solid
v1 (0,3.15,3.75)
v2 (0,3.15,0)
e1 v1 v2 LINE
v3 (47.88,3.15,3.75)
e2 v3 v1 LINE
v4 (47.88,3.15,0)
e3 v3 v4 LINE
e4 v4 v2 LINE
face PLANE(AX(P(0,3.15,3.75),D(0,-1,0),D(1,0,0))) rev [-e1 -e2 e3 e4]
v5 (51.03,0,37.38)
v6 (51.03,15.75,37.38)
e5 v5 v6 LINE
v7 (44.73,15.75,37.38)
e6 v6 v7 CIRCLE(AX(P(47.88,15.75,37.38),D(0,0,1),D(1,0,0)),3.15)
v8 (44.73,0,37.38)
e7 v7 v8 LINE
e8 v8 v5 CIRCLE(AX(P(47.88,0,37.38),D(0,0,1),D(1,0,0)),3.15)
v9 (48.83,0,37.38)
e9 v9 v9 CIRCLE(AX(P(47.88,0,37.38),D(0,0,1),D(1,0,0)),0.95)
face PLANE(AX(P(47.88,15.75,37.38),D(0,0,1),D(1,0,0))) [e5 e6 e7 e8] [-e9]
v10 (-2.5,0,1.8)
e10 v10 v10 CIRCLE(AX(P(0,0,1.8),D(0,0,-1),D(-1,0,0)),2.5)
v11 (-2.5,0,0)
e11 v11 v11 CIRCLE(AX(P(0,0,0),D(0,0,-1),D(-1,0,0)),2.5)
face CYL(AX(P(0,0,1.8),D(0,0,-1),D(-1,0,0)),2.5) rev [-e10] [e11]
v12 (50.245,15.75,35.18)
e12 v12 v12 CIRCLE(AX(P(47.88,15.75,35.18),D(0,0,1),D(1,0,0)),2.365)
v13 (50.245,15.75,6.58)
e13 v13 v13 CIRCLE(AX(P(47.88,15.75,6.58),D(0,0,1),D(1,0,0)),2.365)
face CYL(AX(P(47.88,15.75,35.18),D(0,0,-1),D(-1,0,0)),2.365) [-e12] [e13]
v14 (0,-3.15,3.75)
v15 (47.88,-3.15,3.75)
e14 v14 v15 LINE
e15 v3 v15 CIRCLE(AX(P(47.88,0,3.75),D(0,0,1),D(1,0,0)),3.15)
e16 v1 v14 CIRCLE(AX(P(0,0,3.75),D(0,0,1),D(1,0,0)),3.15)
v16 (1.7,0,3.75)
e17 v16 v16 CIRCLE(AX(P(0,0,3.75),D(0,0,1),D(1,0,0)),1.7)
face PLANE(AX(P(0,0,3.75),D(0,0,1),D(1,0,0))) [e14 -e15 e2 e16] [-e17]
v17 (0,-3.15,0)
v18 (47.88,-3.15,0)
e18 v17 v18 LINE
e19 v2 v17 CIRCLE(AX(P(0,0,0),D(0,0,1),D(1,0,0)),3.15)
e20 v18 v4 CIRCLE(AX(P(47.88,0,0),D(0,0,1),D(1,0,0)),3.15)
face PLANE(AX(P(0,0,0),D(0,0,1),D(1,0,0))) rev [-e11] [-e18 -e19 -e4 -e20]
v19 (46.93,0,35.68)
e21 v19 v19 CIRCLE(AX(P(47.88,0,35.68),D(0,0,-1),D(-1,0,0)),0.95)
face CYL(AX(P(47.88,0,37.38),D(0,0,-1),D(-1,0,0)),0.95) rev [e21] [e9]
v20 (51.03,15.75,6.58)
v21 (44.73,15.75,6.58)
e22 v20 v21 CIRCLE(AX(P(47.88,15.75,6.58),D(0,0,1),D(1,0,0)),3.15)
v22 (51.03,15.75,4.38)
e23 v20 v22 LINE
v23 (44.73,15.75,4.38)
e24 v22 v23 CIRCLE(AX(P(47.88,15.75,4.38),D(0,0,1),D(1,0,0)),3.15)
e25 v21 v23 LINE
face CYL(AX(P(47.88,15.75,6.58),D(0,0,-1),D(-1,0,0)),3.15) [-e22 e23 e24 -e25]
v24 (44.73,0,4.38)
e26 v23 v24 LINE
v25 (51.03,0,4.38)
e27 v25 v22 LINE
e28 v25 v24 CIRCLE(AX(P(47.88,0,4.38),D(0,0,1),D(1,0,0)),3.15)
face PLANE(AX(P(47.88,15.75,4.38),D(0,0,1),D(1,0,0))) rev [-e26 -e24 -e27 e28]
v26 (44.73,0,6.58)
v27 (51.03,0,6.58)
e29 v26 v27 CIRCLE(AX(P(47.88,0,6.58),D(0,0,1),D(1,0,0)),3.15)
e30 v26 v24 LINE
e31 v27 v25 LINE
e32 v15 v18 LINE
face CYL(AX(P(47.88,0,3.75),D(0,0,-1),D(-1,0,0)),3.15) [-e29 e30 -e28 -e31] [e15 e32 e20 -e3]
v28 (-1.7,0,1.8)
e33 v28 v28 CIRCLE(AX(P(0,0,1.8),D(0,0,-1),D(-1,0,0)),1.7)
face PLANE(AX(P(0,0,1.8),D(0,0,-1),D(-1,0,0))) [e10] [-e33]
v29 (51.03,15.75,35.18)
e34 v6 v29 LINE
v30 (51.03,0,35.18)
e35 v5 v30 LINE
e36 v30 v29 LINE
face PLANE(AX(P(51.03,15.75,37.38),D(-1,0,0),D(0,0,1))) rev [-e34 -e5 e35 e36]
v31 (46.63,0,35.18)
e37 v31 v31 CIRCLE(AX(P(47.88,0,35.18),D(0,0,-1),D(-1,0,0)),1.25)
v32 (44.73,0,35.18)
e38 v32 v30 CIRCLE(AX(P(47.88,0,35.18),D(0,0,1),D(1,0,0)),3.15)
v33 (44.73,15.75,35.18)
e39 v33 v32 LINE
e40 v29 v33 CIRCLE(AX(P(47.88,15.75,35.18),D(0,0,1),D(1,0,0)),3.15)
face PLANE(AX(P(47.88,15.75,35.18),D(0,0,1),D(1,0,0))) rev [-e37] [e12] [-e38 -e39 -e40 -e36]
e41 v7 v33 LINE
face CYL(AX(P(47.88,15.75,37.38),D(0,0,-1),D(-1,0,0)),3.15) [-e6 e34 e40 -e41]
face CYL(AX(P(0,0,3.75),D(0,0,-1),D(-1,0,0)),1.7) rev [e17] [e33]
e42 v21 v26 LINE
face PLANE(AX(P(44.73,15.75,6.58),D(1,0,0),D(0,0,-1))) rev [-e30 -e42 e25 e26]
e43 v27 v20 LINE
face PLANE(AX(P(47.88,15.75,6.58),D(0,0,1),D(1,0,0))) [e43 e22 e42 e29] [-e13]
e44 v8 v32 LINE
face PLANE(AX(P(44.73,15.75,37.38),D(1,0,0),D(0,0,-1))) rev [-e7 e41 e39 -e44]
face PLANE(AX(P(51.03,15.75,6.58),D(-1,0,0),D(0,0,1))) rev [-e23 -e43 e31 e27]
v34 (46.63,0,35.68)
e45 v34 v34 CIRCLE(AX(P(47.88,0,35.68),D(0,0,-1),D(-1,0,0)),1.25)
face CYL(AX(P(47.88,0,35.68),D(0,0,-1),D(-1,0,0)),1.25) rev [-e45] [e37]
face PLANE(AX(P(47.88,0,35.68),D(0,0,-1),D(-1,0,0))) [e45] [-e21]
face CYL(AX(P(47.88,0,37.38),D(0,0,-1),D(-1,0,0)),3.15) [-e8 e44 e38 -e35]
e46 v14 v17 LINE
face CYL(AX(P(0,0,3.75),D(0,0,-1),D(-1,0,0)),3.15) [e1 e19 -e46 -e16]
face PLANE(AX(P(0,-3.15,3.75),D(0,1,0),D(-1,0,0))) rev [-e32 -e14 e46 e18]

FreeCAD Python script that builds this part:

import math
import FreeCAD as App
import Part
import Sketcher

V = App.Vector
Q = App.Units.Quantity

doc = App.newDocument("Part")
body = doc.addObject("PartDesign::Body", "Body")

sketch1 = doc.addObject("Sketcher::SketchObject", "Sketch")
body.addObject(sketch1)
sketch1.AttachmentSupport = (doc.XY_Plane, [""])
sketch1.MapMode = "FlatFace"
sketch1.addGeometry(Part.LineSegment(V(47.88, 3.15, 0), V(0, 3.15, 0)), False)
sketch1.addGeometry(Part.ArcOfCircle(Part.Circle(V(0, 0, 0), V(0, 0, 1), 3.15), math.radians(90), math.radians(270)), False)
sketch1.addGeometry(Part.LineSegment(V(0, -3.15, 0), V(47.88, -3.15, 0)), False)
sketch1.addGeometry(Part.ArcOfCircle(Part.Circle(V(47.88, 0, 0), V(0, 0, 1), 3.15), math.radians(-90), math.radians(90)), False)
sketch1.addGeometry(Part.Circle(V(0, 0, 0), V(0, 0, 1), 1.7), False)
sketch1.addConstraint(Sketcher.Constraint("Tangent", 0, 2, 1, 1))
sketch1.addConstraint(Sketcher.Constraint("Tangent", 1, 2, 2, 1))
sketch1.addConstraint(Sketcher.Constraint("Tangent", 2, 2, 3, 1))
sketch1.addConstraint(Sketcher.Constraint("Tangent", 3, 2, 0, 1))
sketch1.addConstraint(Sketcher.Constraint("Horizontal", 0))
sketch1.addConstraint(Sketcher.Constraint("Horizontal", 2))
sketch1.addConstraint(Sketcher.Constraint("Coincident", 1, 3, -1, 1))
sketch1.addConstraint(Sketcher.Constraint("Coincident", 4, 3, -1, 1))
sketch1.addConstraint(Sketcher.Constraint("Diameter", 4, Q("3.4 mm")))
sketch1.addConstraint(Sketcher.Constraint("Radius", 1, Q("3.15 mm")))
sketch1.addConstraint(Sketcher.Constraint("DistanceX", 0, 2, 0, 1, Q("47.88 mm")))
pad1 = doc.addObject("PartDesign::Pad", "Pad")
body.addObject(pad1)
pad1.Profile = sketch1
pad1.Length = 3.75

sketch2 = doc.addObject("Sketcher::SketchObject", "Sketch001")
body.addObject(sketch2)
sketch2.AttachmentSupport = (doc.XY_Plane, [""])
sketch2.MapMode = "FlatFace"
sketch2.AttachmentOffset = App.Placement(V(0, 0, 3.75), App.Rotation())
sketch2.addGeometry(Part.Circle(V(47.88, 0, 0), V(0, 0, 1), 3.15), False)
sketch2.addConstraint(Sketcher.Constraint("PointOnObject", 0, 3, -1))
sketch2.addConstraint(Sketcher.Constraint("Diameter", 0, Q("6.3 mm")))
sketch2.addConstraint(Sketcher.Constraint("DistanceX", -1, 1, 0, 3, Q("47.88 mm")))
pad2 = doc.addObject("PartDesign::Pad", "Pad001")
body.addObject(pad2)
pad2.Profile = sketch2
pad2.Length = 0.63

sketch3 = doc.addObject("Sketcher::SketchObject", "Sketch002")
body.addObject(sketch3)
sketch3.AttachmentSupport = (doc.XY_Plane, [""])
sketch3.MapMode = "FlatFace"
sketch3.AttachmentOffset = App.Placement(V(0, 0, 4.38), App.Rotation())
sketch3.addGeometry(Part.LineSegment(V(44.73, 15.75, 0), V(44.73, 0, 0)), False)
sketch3.addGeometry(Part.ArcOfCircle(Part.Circle(V(47.88, 0, 0), V(0, 0, 1), 3.15), math.radians(180), math.radians(360)), False)
sketch3.addGeometry(Part.LineSegment(V(51.03, 0, 0), V(51.03, 15.75, 0)), False)
sketch3.addGeometry(Part.ArcOfCircle(Part.Circle(V(47.88, 15.75, 0), V(0, 0, 1), 3.15), math.radians(0), math.radians(180)), False)
sketch3.addConstraint(Sketcher.Constraint("Tangent", 0, 2, 1, 1))
sketch3.addConstraint(Sketcher.Constraint("Tangent", 1, 2, 2, 1))
sketch3.addConstraint(Sketcher.Constraint("Tangent", 2, 2, 3, 1))
sketch3.addConstraint(Sketcher.Constraint("Tangent", 3, 2, 0, 1))
sketch3.addConstraint(Sketcher.Constraint("Vertical", 0))
sketch3.addConstraint(Sketcher.Constraint("Vertical", 2))
sketch3.addConstraint(Sketcher.Constraint("PointOnObject", 1, 3, -1))
sketch3.addConstraint(Sketcher.Constraint("Radius", 1, Q("3.15 mm")))
sketch3.addConstraint(Sketcher.Constraint("DistanceY", 0, 2, 0, 1, Q("15.75 mm")))
sketch3.addConstraint(Sketcher.Constraint("DistanceX", -1, 1, 1, 3, Q("47.88 mm")))
pad3 = doc.addObject("PartDesign::Pad", "Pad002")
body.addObject(pad3)
pad3.Profile = sketch3
pad3.Length = 2.2

sketch4 = doc.addObject("Sketcher::SketchObject", "Sketch003")
body.addObject(sketch4)
sketch4.AttachmentSupport = (doc.XY_Plane, [""])
sketch4.MapMode = "FlatFace"
sketch4.AttachmentOffset = App.Placement(V(0, 0, 6.58), App.Rotation())
sketch4.addGeometry(Part.Circle(V(47.88, 15.75, 0), V(0, 0, 1), 2.365), False)
sketch4.addConstraint(Sketcher.Constraint("Diameter", 0, Q("4.73 mm")))
sketch4.addConstraint(Sketcher.Constraint("DistanceX", -1, 1, 0, 3, Q("47.88 mm")))
sketch4.addConstraint(Sketcher.Constraint("DistanceY", -1, 1, 0, 3, Q("15.75 mm")))
pad4 = doc.addObject("PartDesign::Pad", "Pad003")
body.addObject(pad4)
pad4.Profile = sketch4
pad4.Length = 28.6

sketch5 = doc.addObject("Sketcher::SketchObject", "Sketch004")
body.addObject(sketch5)
sketch5.AttachmentSupport = (doc.XY_Plane, [""])
sketch5.MapMode = "FlatFace"
sketch5.AttachmentOffset = App.Placement(V(0, 0, 35.18), App.Rotation())
sketch5.addGeometry(Part.LineSegment(V(44.73, 15.75, 0), V(44.73, 0, 0)), False)
sketch5.addGeometry(Part.ArcOfCircle(Part.Circle(V(47.88, 0, 0), V(0, 0, 1), 3.15), math.radians(180), math.radians(360)), False)
sketch5.addGeometry(Part.LineSegment(V(51.03, 0, 0), V(51.03, 15.75, 0)), False)
sketch5.addGeometry(Part.ArcOfCircle(Part.Circle(V(47.88, 15.75, 0), V(0, 0, 1), 3.15), math.radians(0), math.radians(180)), False)
sketch5.addGeometry(Part.Circle(V(47.88, 0, 0), V(0, 0, 1), 0.95), False)
sketch5.addConstraint(Sketcher.Constraint("Tangent", 0, 2, 1, 1))
sketch5.addConstraint(Sketcher.Constraint("Tangent", 1, 2, 2, 1))
sketch5.addConstraint(Sketcher.Constraint("Tangent", 2, 2, 3, 1))
sketch5.addConstraint(Sketcher.Constraint("Tangent", 3, 2, 0, 1))
sketch5.addConstraint(Sketcher.Constraint("Vertical", 0))
sketch5.addConstraint(Sketcher.Constraint("Vertical", 2))
sketch5.addConstraint(Sketcher.Constraint("Coincident", 4, 3, 1, 3))
sketch5.addConstraint(Sketcher.Constraint("PointOnObject", 1, 3, -1))
sketch5.addConstraint(Sketcher.Constraint("Diameter", 4, Q("1.9 mm")))
sketch5.addConstraint(Sketcher.Constraint("Radius", 1, Q("3.15 mm")))
sketch5.addConstraint(Sketcher.Constraint("DistanceY", 0, 2, 0, 1, Q("15.75 mm")))
sketch5.addConstraint(Sketcher.Constraint("DistanceX", -1, 1, 1, 3, Q("47.88 mm")))
pad5 = doc.addObject("PartDesign::Pad", "Pad004")
body.addObject(pad5)
pad5.Profile = sketch5
pad5.Length = 2.2

sketch6 = doc.addObject("Sketcher::SketchObject", "Sketch005")
body.addObject(sketch6)
sketch6.AttachmentSupport = (doc.XY_Plane, [""])
sketch6.MapMode = "FlatFace"
sketch6.AttachmentOffset = App.Placement(V(0, 0, 35.18), App.Rotation())
sketch6.addGeometry(Part.Circle(V(47.88, 0, 0), V(0, 0, 1), 1.25), False)
sketch6.addConstraint(Sketcher.Constraint("PointOnObject", 0, 3, -1))
sketch6.addConstraint(Sketcher.Constraint("Diameter", 0, Q("2.5 mm")))
sketch6.addConstraint(Sketcher.Constraint("DistanceX", -1, 1, 0, 3, Q("47.88 mm")))
pocket1 = doc.addObject("PartDesign::Pocket", "Pocket")
body.addObject(pocket1)
pocket1.Profile = sketch6
pocket1.Length = 0.5
pocket1.Reversed = True

sketch7 = doc.addObject("Sketcher::SketchObject", "Sketch006")
body.addObject(sketch7)
sketch7.AttachmentSupport = (doc.XY_Plane, [""])
sketch7.MapMode = "FlatFace"
sketch7.addGeometry(Part.Circle(V(0, 0, 0), V(0, 0, 1), 2.5), False)
sketch7.addConstraint(Sketcher.Constraint("Coincident", 0, 3, -1, 1))
sketch7.addConstraint(Sketcher.Constraint("Diameter", 0, Q("5 mm")))
pocket2 = doc.addObject("PartDesign::Pocket", "Pocket001")
body.addObject(pocket2)
pocket2.Profile = sketch7
pocket2.Length = 1.8
pocket2.Reversed = True

doc.recompute()
